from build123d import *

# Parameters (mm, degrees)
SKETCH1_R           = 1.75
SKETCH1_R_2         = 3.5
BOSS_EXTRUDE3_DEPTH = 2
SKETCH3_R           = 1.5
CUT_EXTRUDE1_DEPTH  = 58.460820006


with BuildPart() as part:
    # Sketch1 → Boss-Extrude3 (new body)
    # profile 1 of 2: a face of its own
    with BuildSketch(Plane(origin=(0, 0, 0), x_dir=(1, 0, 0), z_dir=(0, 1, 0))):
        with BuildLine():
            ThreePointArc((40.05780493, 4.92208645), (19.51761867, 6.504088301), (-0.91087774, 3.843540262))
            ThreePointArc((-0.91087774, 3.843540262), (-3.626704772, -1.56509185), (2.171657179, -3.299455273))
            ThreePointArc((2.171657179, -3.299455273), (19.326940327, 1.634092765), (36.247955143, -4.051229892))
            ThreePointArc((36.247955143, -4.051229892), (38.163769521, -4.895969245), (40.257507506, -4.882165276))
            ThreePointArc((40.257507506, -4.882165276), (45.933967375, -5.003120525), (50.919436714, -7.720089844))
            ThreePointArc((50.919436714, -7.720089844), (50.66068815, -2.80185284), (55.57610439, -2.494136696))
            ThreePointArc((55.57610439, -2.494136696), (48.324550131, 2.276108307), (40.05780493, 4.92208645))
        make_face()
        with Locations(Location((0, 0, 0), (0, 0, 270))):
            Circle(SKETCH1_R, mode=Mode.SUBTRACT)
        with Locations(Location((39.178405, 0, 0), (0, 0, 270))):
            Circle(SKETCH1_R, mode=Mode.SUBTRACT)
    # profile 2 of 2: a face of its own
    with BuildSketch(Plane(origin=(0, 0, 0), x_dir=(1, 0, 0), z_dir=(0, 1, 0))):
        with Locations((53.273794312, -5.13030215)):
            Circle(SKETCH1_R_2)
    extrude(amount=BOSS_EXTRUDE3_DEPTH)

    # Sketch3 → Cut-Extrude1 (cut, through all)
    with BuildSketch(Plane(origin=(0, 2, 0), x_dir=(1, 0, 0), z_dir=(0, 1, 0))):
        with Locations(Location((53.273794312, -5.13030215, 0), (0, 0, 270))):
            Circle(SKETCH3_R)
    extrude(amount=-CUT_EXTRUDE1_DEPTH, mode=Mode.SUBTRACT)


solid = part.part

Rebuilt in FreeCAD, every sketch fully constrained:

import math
import FreeCAD as App
import Part
import Sketcher

doc = App.newDocument("Part")
body = doc.addObject("PartDesign::Body", "Body")

# Sketch on XZ plane
sketch1 = doc.addObject("Sketcher::SketchObject", "Sketch")
body.addObject(sketch1)
sketch1.AttachmentSupport = (doc.XZ_Plane, [""])
sketch1.MapMode = "FlatFace"
sketch1.addGeometry([
    Part.ArcOfCircle(Part.Circle(App.Vector(22.1, 93.5, 0), App.Vector(0, 0, 1), 100), math.radians(-103), math.radians(-80)),  # 0
    Part.ArcOfCircle(Part.Circle(App.Vector(0, 0, 0), App.Vector(0, 0, 1), 4), math.radians(57), math.radians(257)),  # 1
    Part.ArcOfCircle(Part.Circle(App.Vector(18.7, 28.4, 0), App.Vector(0, 0, 1), 30), math.radians(-123), math.radians(-54)),  # 2
    Part.ArcOfCircle(Part.Circle(App.Vector(39.2, 0, 0), App.Vector(0, 0, 1), 5), math.radians(78), math.radians(126)),  # 3
    Part.ArcOfCircle(Part.Circle(App.Vector(42.8, 16.6, 0), App.Vector(0, 0, 1), 12), math.radians(-102), math.radians(-48)),  # 4
    Part.ArcOfCircle(Part.Circle(App.Vector(53.3, 5.1, 0), App.Vector(0, 0, 1), 3.5), math.radians(-49), math.radians(132)),  # 5
    Part.ArcOfCircle(Part.Circle(App.Vector(34.5, 26.6, 0), App.Vector(0, 0, 1), 32), math.radians(-80), math.radians(-49)),  # 6
    Part.Circle(App.Vector(0, 0, 0), App.Vector(0, 0, 1), 1.8),  # 7
    Part.Circle(App.Vector(39.2, 0, 0), App.Vector(0, 0, 1), 1.8),  # 8
], False)
sketch1.addConstraint([
    Sketcher.Constraint("Tangent", 0, 1, 1, 2),
    Sketcher.Constraint("Tangent", 1, 1, 2, 1),
    Sketcher.Constraint("Tangent", 2, 2, 3, 2),
    Sketcher.Constraint("Tangent", 3, 1, 4, 1),
    Sketcher.Constraint("Tangent", 4, 2, 5, 2),
    Sketcher.Constraint("Tangent", 5, 1, 6, 2),
    Sketcher.Constraint("Coincident", 6, 1, 0, 2),
    Sketcher.Constraint("Coincident", 1, 3, -1, 1),
    Sketcher.Constraint("Coincident", 7, 3, -1, 1),
    Sketcher.Constraint("Coincident", 8, 3, 3, 3),
    Sketcher.Constraint("Equal", 7, 8),
    Sketcher.Constraint("PointOnObject", 3, 3, -1),
    Sketcher.Constraint("Radius", 0, 100.0),
    Sketcher.Constraint("Radius", 2, 30.0),
    Sketcher.Constraint("Radius", 3, 5.0),
    Sketcher.Constraint("Radius", 4, 12.0),
    Sketcher.Constraint("Radius", 6, 32.0),
    Sketcher.Constraint("Diameter", 7, 3.5),
    Sketcher.Constraint("Radius", 5, 3.5),
    Sketcher.Constraint("Radius", 1, 3.95),
    Sketcher.Constraint("DistanceX", 1, 1, 2, 3, 16.493599),
    Sketcher.Constraint("DistanceX", 2, 2, 4, 3, 6.599398),
    Sketcher.Constraint("DistanceX", 8, 3, 5, 1, 16.397699),
    Sketcher.Constraint("DistanceX", 8, 3, 6, 1, 0.8794),
    Sketcher.Constraint("DistanceX", -1, 1, 0, 3, 22.149318),
])
pad1 = doc.addObject("PartDesign::Pad", "Pad")
body.addObject(pad1)
pad1.Profile = sketch1
pad1.Length = 2
pad1.Reversed = True

# Sketch on XZ plane
sketch2 = doc.addObject("Sketcher::SketchObject", "Sketch001")
body.addObject(sketch2)
sketch2.AttachmentSupport = (doc.XZ_Plane, [""])
sketch2.MapMode = "FlatFace"
sketch2.AttachmentOffset = App.Placement(App.Vector(0, 0, -2), App.Rotation())
sketch2.addGeometry(Part.Circle(App.Vector(53.3, 5.1, 0), App.Vector(0, 0, 1), 1.5), False)
sketch2.addConstraint([
    Sketcher.Constraint("Diameter", 0, 3.0),
    Sketcher.Constraint("DistanceX", -1, 1, 0, 3, 53.273794),
    Sketcher.Constraint("DistanceY", -1, 1, 0, 3, 5.130302),
])
pocket1 = doc.addObject("PartDesign::Pocket", "Pocket")
body.addObject(pocket1)
pocket1.Profile = sketch2
pocket1.Type = "ThroughAll"
pocket1.Reversed = True

doc.recompute()
